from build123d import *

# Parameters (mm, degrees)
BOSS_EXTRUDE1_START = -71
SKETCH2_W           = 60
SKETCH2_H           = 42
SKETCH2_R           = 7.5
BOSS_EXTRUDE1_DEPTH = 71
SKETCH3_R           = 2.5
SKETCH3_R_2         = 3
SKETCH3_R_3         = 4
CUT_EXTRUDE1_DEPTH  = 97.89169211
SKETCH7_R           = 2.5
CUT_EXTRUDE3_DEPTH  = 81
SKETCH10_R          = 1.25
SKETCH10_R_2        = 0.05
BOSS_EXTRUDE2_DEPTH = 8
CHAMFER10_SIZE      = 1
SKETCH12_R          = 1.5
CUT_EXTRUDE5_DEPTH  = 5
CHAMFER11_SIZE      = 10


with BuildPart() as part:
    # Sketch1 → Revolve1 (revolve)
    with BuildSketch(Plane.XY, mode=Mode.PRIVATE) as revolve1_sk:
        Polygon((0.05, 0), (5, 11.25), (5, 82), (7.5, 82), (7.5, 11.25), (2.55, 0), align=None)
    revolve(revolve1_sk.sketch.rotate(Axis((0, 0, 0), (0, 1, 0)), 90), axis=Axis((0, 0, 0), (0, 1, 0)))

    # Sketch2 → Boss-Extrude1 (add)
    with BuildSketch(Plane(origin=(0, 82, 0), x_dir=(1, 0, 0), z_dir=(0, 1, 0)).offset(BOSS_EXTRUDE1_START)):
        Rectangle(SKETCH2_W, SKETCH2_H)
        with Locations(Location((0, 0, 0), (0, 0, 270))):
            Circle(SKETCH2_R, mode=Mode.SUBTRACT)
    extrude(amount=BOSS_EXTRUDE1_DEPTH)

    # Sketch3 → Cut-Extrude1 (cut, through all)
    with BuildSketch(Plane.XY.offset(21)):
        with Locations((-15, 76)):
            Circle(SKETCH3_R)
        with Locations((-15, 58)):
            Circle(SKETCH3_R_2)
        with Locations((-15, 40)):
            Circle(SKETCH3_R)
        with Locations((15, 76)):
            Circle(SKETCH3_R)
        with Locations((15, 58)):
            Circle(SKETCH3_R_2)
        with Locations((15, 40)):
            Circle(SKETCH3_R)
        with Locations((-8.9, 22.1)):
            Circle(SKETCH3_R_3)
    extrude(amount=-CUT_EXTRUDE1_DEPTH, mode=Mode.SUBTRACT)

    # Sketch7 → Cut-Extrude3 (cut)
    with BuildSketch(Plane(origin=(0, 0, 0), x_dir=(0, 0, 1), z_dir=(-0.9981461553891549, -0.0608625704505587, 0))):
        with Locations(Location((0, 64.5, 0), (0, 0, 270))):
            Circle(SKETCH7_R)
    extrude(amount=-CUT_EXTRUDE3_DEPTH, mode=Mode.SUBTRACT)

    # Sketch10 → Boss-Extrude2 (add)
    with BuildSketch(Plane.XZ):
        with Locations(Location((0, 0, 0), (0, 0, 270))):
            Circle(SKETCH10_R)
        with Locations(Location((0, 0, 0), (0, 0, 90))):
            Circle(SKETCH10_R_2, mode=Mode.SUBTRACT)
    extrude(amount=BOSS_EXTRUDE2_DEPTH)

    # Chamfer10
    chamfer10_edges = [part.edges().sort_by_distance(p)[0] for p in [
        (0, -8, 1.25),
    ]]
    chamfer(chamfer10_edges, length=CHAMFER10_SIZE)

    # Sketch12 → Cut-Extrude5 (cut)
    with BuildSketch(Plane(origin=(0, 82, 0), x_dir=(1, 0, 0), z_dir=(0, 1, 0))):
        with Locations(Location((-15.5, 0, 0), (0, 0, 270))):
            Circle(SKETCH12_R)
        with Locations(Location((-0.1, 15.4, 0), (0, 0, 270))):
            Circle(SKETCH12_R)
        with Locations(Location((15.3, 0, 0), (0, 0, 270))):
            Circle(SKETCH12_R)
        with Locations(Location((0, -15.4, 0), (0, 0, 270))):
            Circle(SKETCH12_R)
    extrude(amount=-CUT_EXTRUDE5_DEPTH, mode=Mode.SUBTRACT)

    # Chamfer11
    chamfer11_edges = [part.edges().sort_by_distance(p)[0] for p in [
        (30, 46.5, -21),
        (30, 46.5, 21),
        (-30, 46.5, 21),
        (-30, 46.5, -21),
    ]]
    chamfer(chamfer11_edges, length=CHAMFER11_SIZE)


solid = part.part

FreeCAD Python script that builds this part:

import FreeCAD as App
import Part
import Sketcher
Q = App.Units.Quantity


def edges_at(feature, points):
    """Names of the edges that pass closest to the given points."""
    edges = feature.Shape.Edges
    near = lambda p: min(range(len(edges)), key=lambda i: edges[i].distToShape(Part.Vertex(*p))[0])
    return sorted({f"Edge{near(p) + 1}" for p in points})

doc = App.newDocument("Part")
params = doc.addObject("Spreadsheet::Sheet", "Params")
for row, (alias, value) in enumerate([
    ("sketch1_width", "2.5 mm"),
    ("sketch1_height", "70.75 mm"),
    ("revolution_angle", "360 deg"),
    ("sketch2_diameter", "15 mm"),
    ("sketch2_width", "60 mm"),
    ("sketch2_height", "42 mm"),
    ("pad1_length", "71 mm"),
    ("sketch3_diameter", "5 mm"),
    ("sketch3_diameter2", "6 mm"),
    ("sketch3_diameter3", "8 mm"),
    ("sketch4_diameter", "5 mm"),
    ("pocket2_length", "81 mm"),
    ("sketch5_diameter", "2.5 mm"),
    ("sketch5_diameter2", "0.1 mm"),
    ("pad2_length", "8 mm"),
    ("chamfer_size", "1 mm"),
    ("sketch6_diameter", "3 mm"),
    ("pocket3_length", "5 mm"),
    ("chamfer2_size", "10 mm"),
], start=1):
    params.set(f"A{row}", alias)
    params.set(f"B{row}", "=" + value)
    params.setAlias(f"B{row}", alias)

body = doc.addObject("PartDesign::Body", "Body")

# Sketch on XY plane
sketch1 = body.newObject("Sketcher::SketchObject", "Sketch")
sketch1.AttachmentSupport = (doc.getObject("XY_Plane"), [""])
sketch1.MapMode = "FlatFace"
sketch1.addGeometry(Part.LineSegment(App.Vector(5, 11.25, 0), App.Vector(0.05, 0, 0)), False)
sketch1.addGeometry(Part.LineSegment(App.Vector(0.05, 0, 0), App.Vector(2.55, 0, 0)), False)
sketch1.addGeometry(Part.LineSegment(App.Vector(2.55, 0, 0), App.Vector(7.5, 11.25, 0)), False)
sketch1.addGeometry(Part.LineSegment(App.Vector(7.5, 11.25, 0), App.Vector(7.5, 82, 0)), False)
sketch1.addGeometry(Part.LineSegment(App.Vector(7.5, 82, 0), App.Vector(5, 82, 0)), False)
sketch1.addGeometry(Part.LineSegment(App.Vector(5, 82, 0), App.Vector(5, 11.25, 0)), False)
sketch1.addConstraint(Sketcher.Constraint("Coincident", 0, 2, 1, 1))
sketch1.addConstraint(Sketcher.Constraint("Coincident", 1, 2, 2, 1))
sketch1.addConstraint(Sketcher.Constraint("Coincident", 2, 2, 3, 1))
sketch1.addConstraint(Sketcher.Constraint("Coincident", 3, 2, 4, 1))
sketch1.addConstraint(Sketcher.Constraint("Coincident", 4, 2, 5, 1))
sketch1.addConstraint(Sketcher.Constraint("Coincident", 5, 2, 0, 1))
sketch1.addConstraint(Sketcher.Constraint("Horizontal", 1))
sketch1.addConstraint(Sketcher.Constraint("Vertical", 3))
sketch1.addConstraint(Sketcher.Constraint("Horizontal", 4))
sketch1.addConstraint(Sketcher.Constraint("Vertical", 5))
sketch1.addConstraint(Sketcher.Constraint("PointOnObject", 0, 2, -1))
sketch1.addConstraint(Sketcher.Constraint("Parallel", 0, 2))
sketch1.addConstraint(Sketcher.Constraint("Horizontal", 2, 2, 5, 2))
sketch1.addConstraint(Sketcher.Constraint("DistanceX", 1, 1, 1, 2, Q("2.5 mm")))
sketch1.addConstraint(Sketcher.Constraint("DistanceY", -1, 1, 3, 2, Q("82 mm")))
sketch1.addConstraint(Sketcher.Constraint("DistanceX", -1, 1, 4, 2, Q("5 mm")))
sketch1.addConstraint(Sketcher.Constraint("DistanceY", 3, 1, 3, 2, Q("70.75 mm")))
sketch1.addConstraint(Sketcher.Constraint("DistanceX", -1, 1, 0, 2, Q("0.05 mm")))
sketch1.setExpression("Constraints[13]", "Params.sketch1_width")
sketch1.setExpression("Constraints[16]", "Params.sketch1_height")
revolution = body.newObject("PartDesign::Revolution", "Revolution")
revolution.Profile = sketch1
revolution.ReferenceAxis = (sketch1, ["V_Axis"])
revolution.setExpression("Angle", "Params.revolution_angle")

# Sketch on XZ plane
sketch2 = body.newObject("Sketcher::SketchObject", "Sketch001")
sketch2.AttachmentSupport = (doc.getObject("XZ_Plane"), [""])
sketch2.MapMode = "FlatFace"
sketch2.AttachmentOffset = App.Placement(App.Vector(0, 0, -11), App.Rotation())
sketch2.addGeometry(Part.LineSegment(App.Vector(-30, -21, 0), App.Vector(-30, 21, 0)), False)
sketch2.addGeometry(Part.LineSegment(App.Vector(-30, 21, 0), App.Vector(30, 21, 0)), False)
sketch2.addGeometry(Part.LineSegment(App.Vector(30, 21, 0), App.Vector(30, -21, 0)), False)
sketch2.addGeometry(Part.LineSegment(App.Vector(30, -21, 0), App.Vector(-30, -21, 0)), False)
sketch2.addGeometry(Part.Circle(App.Vector(0, 0, 0), App.Vector(0, 0, 1), 7.5), False)
sketch2.addConstraint(Sketcher.Constraint("Coincident", 0, 2, 1, 1))
sketch2.addConstraint(Sketcher.Constraint("Coincident", 1, 2, 2, 1))
sketch2.addConstraint(Sketcher.Constraint("Coincident", 2, 2, 3, 1))
sketch2.addConstraint(Sketcher.Constraint("Coincident", 3, 2, 0, 1))
sketch2.addConstraint(Sketcher.Constraint("Vertical", 0))
sketch2.addConstraint(Sketcher.Constraint("Horizontal", 1))
sketch2.addConstraint(Sketcher.Constraint("Vertical", 2))
sketch2.addConstraint(Sketcher.Constraint("Horizontal", 3))
sketch2.addConstraint(Sketcher.Constraint("Coincident", 4, 3, -1, 1))
sketch2.addConstraint(Sketcher.Constraint("Symmetric", 0, 2, 2, 2, -1, 1))
sketch2.addConstraint(Sketcher.Constraint("Diameter", 4, Q("15 mm")))
sketch2.addConstraint(Sketcher.Constraint("DistanceX", 1, 1, 1, 2, Q("60 mm")))
sketch2.addConstraint(Sketcher.Constraint("DistanceY", 0, 1, 0, 2, Q("42 mm")))
sketch2.setExpression("Constraints[10]", "Params.sketch2_diameter")
sketch2.setExpression("Constraints[11]", "Params.sketch2_width")
sketch2.setExpression("Constraints[12]", "Params.sketch2_height")
pad1 = body.newObject("PartDesign::Pad", "Pad")
pad1.Profile = sketch2
pad1.setExpression("Length", "Params.pad1_length")
pad1.Reversed = True

# Sketch on XY plane
sketch3 = body.newObject("Sketcher::SketchObject", "Sketch002")
sketch3.AttachmentSupport = (doc.getObject("XY_Plane"), [""])
sketch3.MapMode = "FlatFace"
sketch3.AttachmentOffset = App.Placement(App.Vector(0, 0, 21), App.Rotation())
sketch3.addGeometry(Part.Circle(App.Vector(-15, 76, 0), App.Vector(0, 0, 1), 2.5), False)
sketch3.addGeometry(Part.Circle(App.Vector(-15, 58, 0), App.Vector(0, 0, 1), 3), False)
sketch3.addGeometry(Part.Circle(App.Vector(-15, 40, 0), App.Vector(0, 0, 1), 2.5), False)
sketch3.addGeometry(Part.Circle(App.Vector(15, 76, 0), App.Vector(0, 0, 1), 2.5), False)
sketch3.addGeometry(Part.Circle(App.Vector(15, 58, 0), App.Vector(0, 0, 1), 3), False)
sketch3.addGeometry(Part.Circle(App.Vector(15, 40, 0), App.Vector(0, 0, 1), 2.5), False)
sketch3.addGeometry(Part.Circle(App.Vector(-8.9, 22.1, 0), App.Vector(0, 0, 1), 4), False)
sketch3.addConstraint(Sketcher.Constraint("Equal", 0, 2))
sketch3.addConstraint(Sketcher.Constraint("Equal", 2, 3))
sketch3.addConstraint(Sketcher.Constraint("Equal", 1, 4))
sketch3.addConstraint(Sketcher.Constraint("Equal", 3, 5))
sketch3.addConstraint(Sketcher.Constraint("Symmetric", 0, 3, 3, 3, -2))
sketch3.addConstraint(Sketcher.Constraint("Symmetric", 1, 3, 4, 3, -2))
sketch3.addConstraint(Sketcher.Constraint("Symmetric", 2, 3, 5, 3, -2))
sketch3.addConstraint(Sketcher.Constraint("Vertical", 0, 3, 1, 3))
sketch3.addConstraint(Sketcher.Constraint("Vertical", 1, 3, 2, 3))
sketch3.addConstraint(Sketcher.Constraint("Diameter", 0, Q("5 mm")))
sketch3.addConstraint(Sketcher.Constraint("Diameter", 1, Q("6 mm")))
sketch3.addConstraint(Sketcher.Constraint("Diameter", 6, Q("8 mm")))
sketch3.addConstraint(Sketcher.Constraint("DistanceX", 0, 3, -1, 1, Q("15 mm")))
sketch3.addConstraint(Sketcher.Constraint("DistanceY", -1, 1, 0, 3, Q("76 mm")))
sketch3.addConstraint(Sketcher.Constraint("DistanceY", -1, 1, 1, 3, Q("58 mm")))
sketch3.addConstraint(Sketcher.Constraint("DistanceY", -1, 1, 2, 3, Q("40 mm")))
sketch3.addConstraint(Sketcher.Constraint("DistanceX", 6, 3, -1, 1, Q("8.9 mm")))
sketch3.addConstraint(Sketcher.Constraint("DistanceY", -1, 1, 6, 3, Q("22.1 mm")))
sketch3.setExpression("Constraints[9]", "Params.sketch3_diameter")
sketch3.setExpression("Constraints[10]", "Params.sketch3_diameter2")
sketch3.setExpression("Constraints[11]", "Params.sketch3_diameter3")
pocket1 = body.newObject("PartDesign::Pocket", "Pocket")
pocket1.Profile = sketch3
pocket1.Type = "ThroughAll"

# Sketch on an angled plane
sketch4 = body.newObject("Sketcher::SketchObject", "Sketch003")
sketch4.Placement = App.Placement(App.Vector(0, 0, 0), App.Rotation(App.Vector(0, 0, 1), App.Vector(-0.06086257, 0.998146155, 0), App.Vector(-0.998146155, -0.06086257, 0), "ZXY"))
sketch4.addGeometry(Part.Circle(App.Vector(0, 64.5, 0), App.Vector(0, 0, 1), 2.5), False)
sketch4.addConstraint(Sketcher.Constraint("PointOnObject", 0, 3, -2))
sketch4.addConstraint(Sketcher.Constraint("Diameter", 0, Q("5 mm")))
sketch4.addConstraint(Sketcher.Constraint("DistanceY", -1, 1, 0, 3, Q("64.5 mm")))
sketch4.setExpression("Constraints[1]", "Params.sketch4_diameter")
pocket2 = body.newObject("PartDesign::Pocket", "Pocket001")
pocket2.Profile = sketch4
pocket2.setExpression("Length", "Params.pocket2_length")

# Sketch on XZ plane
sketch5 = body.newObject("Sketcher::SketchObject", "Sketch004")
sketch5.AttachmentSupport = (doc.getObject("XZ_Plane"), [""])
sketch5.MapMode = "FlatFace"
sketch5.addGeometry(Part.Circle(App.Vector(0, 0, 0), App.Vector(0, 0, 1), 1.25), False)
sketch5.addGeometry(Part.Circle(App.Vector(0, 0, 0), App.Vector(0, 0, 1), 0.05), False)
sketch5.addConstraint(Sketcher.Constraint("Coincident", 0, 3, -1, 1))
sketch5.addConstraint(Sketcher.Constraint("Coincident", 1, 3, -1, 1))
sketch5.addConstraint(Sketcher.Constraint("Diameter", 0, Q("2.5 mm")))
sketch5.addConstraint(Sketcher.Constraint("Diameter", 1, Q("0.1 mm")))
sketch5.setExpression("Constraints[2]", "Params.sketch5_diameter")
sketch5.setExpression("Constraints[3]", "Params.sketch5_diameter2")
pad2 = body.newObject("PartDesign::Pad", "Pad001")
pad2.Profile = sketch5
pad2.setExpression("Length", "Params.pad2_length")
doc.recompute()

chamfer = body.newObject("PartDesign::Chamfer", "Chamfer")
chamfer.Base = (pad2, edges_at(pad2, [(0, -8, 1.25)]))
chamfer.setExpression("Size", "Params.chamfer_size")

# Sketch on XZ plane
sketch6 = body.newObject("Sketcher::SketchObject", "Sketch005")
sketch6.AttachmentSupport = (doc.getObject("XZ_Plane"), [""])
sketch6.MapMode = "FlatFace"
sketch6.AttachmentOffset = App.Placement(App.Vector(0, 0, -82), App.Rotation())
sketch6.addGeometry(Part.Circle(App.Vector(-15.5, 0, 0), App.Vector(0, 0, 1), 1.5), False)
sketch6.addGeometry(Part.Circle(App.Vector(-0.1, -15.4, 0), App.Vector(0, 0, 1), 1.5), False)
sketch6.addGeometry(Part.Circle(App.Vector(15.3, 0, 0), App.Vector(0, 0, 1), 1.5), False)
sketch6.addGeometry(Part.Circle(App.Vector(0, 15.4, 0), App.Vector(0, 0, 1), 1.5), False)
sketch6.addConstraint(Sketcher.Constraint("Equal", 0, 1))
sketch6.addConstraint(Sketcher.Constraint("Equal", 1, 2))
sketch6.addConstraint(Sketcher.Constraint("Equal", 2, 3))
sketch6.addConstraint(Sketcher.Constraint("PointOnObject", 0, 3, -1))
sketch6.addConstraint(Sketcher.Constraint("PointOnObject", 2, 3, -1))
sketch6.addConstraint(Sketcher.Constraint("PointOnObject", 3, 3, -2))
sketch6.addConstraint(Sketcher.Constraint("Diameter", 0, Q("3 mm")))
sketch6.addConstraint(Sketcher.Constraint("DistanceX", 0, 3, -1, 1, Q("15.5 mm")))
sketch6.addConstraint(Sketcher.Constraint("DistanceX", 1, 3, -1, 1, Q("0.1 mm")))
sketch6.addConstraint(Sketcher.Constraint("DistanceY", 1, 3, -1, 1, Q("15.4 mm")))
sketch6.addConstraint(Sketcher.Constraint("DistanceX", -1, 1, 2, 3, Q("15.3 mm")))
sketch6.addConstraint(Sketcher.Constraint("DistanceY", -1, 1, 3, 3, Q("15.4 mm")))
sketch6.setExpression("Constraints[6]", "Params.sketch6_diameter")
pocket3 = body.newObject("PartDesign::Pocket", "Pocket002")
pocket3.Profile = sketch6
pocket3.setExpression("Length", "Params.pocket3_length")
pocket3.Reversed = True
doc.recompute()

chamfer2 = body.newObject("PartDesign::Chamfer", "Chamfer001")
chamfer2.Base = (pocket3, edges_at(pocket3, [
    (30, 46.5, -21),
    (30, 46.5, 21),
    (-30, 46.5, 21),
    (-30, 46.5, -21),
]))
chamfer2.setExpression("Size", "Params.chamfer2_size")

doc.recompute()
